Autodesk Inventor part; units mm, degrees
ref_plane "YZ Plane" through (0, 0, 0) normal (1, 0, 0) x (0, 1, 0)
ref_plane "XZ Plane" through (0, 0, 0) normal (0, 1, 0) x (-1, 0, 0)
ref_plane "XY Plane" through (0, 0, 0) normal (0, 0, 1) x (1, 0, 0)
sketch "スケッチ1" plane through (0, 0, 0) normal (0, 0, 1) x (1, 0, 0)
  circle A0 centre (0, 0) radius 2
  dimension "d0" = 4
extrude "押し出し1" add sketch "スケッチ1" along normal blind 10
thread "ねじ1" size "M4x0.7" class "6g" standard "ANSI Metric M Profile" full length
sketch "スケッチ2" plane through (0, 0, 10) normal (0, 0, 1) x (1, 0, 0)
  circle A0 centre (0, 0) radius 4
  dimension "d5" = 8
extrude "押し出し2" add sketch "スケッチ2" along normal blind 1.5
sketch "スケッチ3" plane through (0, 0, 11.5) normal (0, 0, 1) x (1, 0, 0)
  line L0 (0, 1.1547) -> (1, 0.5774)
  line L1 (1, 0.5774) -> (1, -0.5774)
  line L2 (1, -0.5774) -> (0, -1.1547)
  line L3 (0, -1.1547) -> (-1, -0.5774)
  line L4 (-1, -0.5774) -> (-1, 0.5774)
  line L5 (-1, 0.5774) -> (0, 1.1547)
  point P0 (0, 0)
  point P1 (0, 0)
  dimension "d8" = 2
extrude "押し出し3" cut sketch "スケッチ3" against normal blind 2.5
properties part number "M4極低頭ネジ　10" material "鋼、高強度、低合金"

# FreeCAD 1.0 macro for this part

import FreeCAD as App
import Part
import Sketcher

V = App.Vector
Q = App.Units.Quantity

doc = App.newDocument("Part")
params = doc.addObject("Spreadsheet::Sheet", "Params")
for row, (alias, value) in enumerate([
    ("sketch1_diameter", "4 mm"),
    ("pad1_length", "10 mm"),
    ("sketch2_diameter", "8 mm"),
    ("pad2_length", "1.5 mm"),
    ("pocket1_length", "2.5 mm"),
], start=1):
    params.set(f"A{row}", alias)
    params.set(f"B{row}", "=" + value)
    params.setAlias(f"B{row}", alias)

body = doc.addObject("PartDesign::Body", "Body")

sketch1 = body.newObject("Sketcher::SketchObject", "Sketch")
sketch1.AttachmentSupport = (doc.getObject("XY_Plane"), [""])
sketch1.MapMode = "FlatFace"
sketch1.addGeometry(Part.Circle(V(0, 0, 0), V(0, 0, 1), 2), False)
sketch1.addConstraint(Sketcher.Constraint("Coincident", 0, 3, -1, 1))
sketch1.addConstraint(Sketcher.Constraint("Diameter", 0, Q("4 mm")))
sketch1.setExpression("Constraints[1]", "Params.sketch1_diameter")
pad1 = body.newObject("PartDesign::Pad", "Pad")
pad1.Profile = sketch1
pad1.setExpression("Length", "Params.pad1_length")

sketch2 = body.newObject("Sketcher::SketchObject", "Sketch001")
sketch2.AttachmentSupport = (doc.getObject("XY_Plane"), [""])
sketch2.MapMode = "FlatFace"
sketch2.AttachmentOffset = App.Placement(V(0, 0, 10), App.Rotation())
sketch2.addGeometry(Part.Circle(V(0, 0, 0), V(0, 0, 1), 4), False)
sketch2.addConstraint(Sketcher.Constraint("Coincident", 0, 3, -1, 1))
sketch2.addConstraint(Sketcher.Constraint("Diameter", 0, Q("8 mm")))
sketch2.setExpression("Constraints[1]", "Params.sketch2_diameter")
pad2 = body.newObject("PartDesign::Pad", "Pad001")
pad2.Profile = sketch2
pad2.setExpression("Length", "Params.pad2_length")

sketch3 = body.newObject("Sketcher::SketchObject", "Sketch002")
sketch3.AttachmentSupport = (doc.getObject("XY_Plane"), [""])
sketch3.MapMode = "FlatFace"
sketch3.AttachmentOffset = App.Placement(V(0, 0, 11.5), App.Rotation())
sketch3.addGeometry(Part.LineSegment(V(1, 0.6, 0), V(0, 1.2, 0)), False)
sketch3.addGeometry(Part.LineSegment(V(0, 1.2, 0), V(-1, 0.6, 0)), False)
sketch3.addGeometry(Part.LineSegment(V(-1, 0.6, 0), V(-1, -0.6, 0)), False)
sketch3.addGeometry(Part.LineSegment(V(-1, -0.6, 0), V(0, -1.2, 0)), False)
sketch3.addGeometry(Part.LineSegment(V(0, -1.2, 0), V(1, -0.6, 0)), False)
sketch3.addGeometry(Part.LineSegment(V(1, -0.6, 0), V(1, 0.6, 0)), False)
sketch3.addConstraint(Sketcher.Constraint("Coincident", 0, 2, 1, 1))
sketch3.addConstraint(Sketcher.Constraint("Coincident", 1, 2, 2, 1))
sketch3.addConstraint(Sketcher.Constraint("Coincident", 2, 2, 3, 1))
sketch3.addConstraint(Sketcher.Constraint("Coincident", 3, 2, 4, 1))
sketch3.addConstraint(Sketcher.Constraint("Coincident", 4, 2, 5, 1))
sketch3.addConstraint(Sketcher.Constraint("Coincident", 5, 2, 0, 1))
sketch3.addConstraint(Sketcher.Constraint("Vertical", 2))
sketch3.addConstraint(Sketcher.Constraint("Vertical", 5))
sketch3.addConstraint(Sketcher.Constraint("Symmetric", 0, 2, 3, 2, -1, 1))
sketch3.addConstraint(Sketcher.Constraint("Symmetric", 1, 2, 4, 2, -1, 1))
sketch3.addConstraint(Sketcher.Constraint("PointOnObject", 0, 2, -2))
sketch3.addConstraint(Sketcher.Constraint("Parallel", 0, 3))
sketch3.addConstraint(Sketcher.Constraint("Horizontal", 2, 2, 4, 2))
sketch3.addConstraint(Sketcher.Constraint("DistanceX", 2, 2, 4, 2, Q("2 mm")))
sketch3.addConstraint(Sketcher.Constraint("DistanceY", 2, 2, 2, 1, Q("1.1548 mm")))
sketch3.addConstraint(Sketcher.Constraint("DistanceY", 2, 2, 0, 2, Q("1.732 mm")))
pocket1 = body.newObject("PartDesign::Pocket", "Pocket")
pocket1.Profile = sketch3
pocket1.setExpression("Length", "Params.pocket1_length")

doc.recompute()
